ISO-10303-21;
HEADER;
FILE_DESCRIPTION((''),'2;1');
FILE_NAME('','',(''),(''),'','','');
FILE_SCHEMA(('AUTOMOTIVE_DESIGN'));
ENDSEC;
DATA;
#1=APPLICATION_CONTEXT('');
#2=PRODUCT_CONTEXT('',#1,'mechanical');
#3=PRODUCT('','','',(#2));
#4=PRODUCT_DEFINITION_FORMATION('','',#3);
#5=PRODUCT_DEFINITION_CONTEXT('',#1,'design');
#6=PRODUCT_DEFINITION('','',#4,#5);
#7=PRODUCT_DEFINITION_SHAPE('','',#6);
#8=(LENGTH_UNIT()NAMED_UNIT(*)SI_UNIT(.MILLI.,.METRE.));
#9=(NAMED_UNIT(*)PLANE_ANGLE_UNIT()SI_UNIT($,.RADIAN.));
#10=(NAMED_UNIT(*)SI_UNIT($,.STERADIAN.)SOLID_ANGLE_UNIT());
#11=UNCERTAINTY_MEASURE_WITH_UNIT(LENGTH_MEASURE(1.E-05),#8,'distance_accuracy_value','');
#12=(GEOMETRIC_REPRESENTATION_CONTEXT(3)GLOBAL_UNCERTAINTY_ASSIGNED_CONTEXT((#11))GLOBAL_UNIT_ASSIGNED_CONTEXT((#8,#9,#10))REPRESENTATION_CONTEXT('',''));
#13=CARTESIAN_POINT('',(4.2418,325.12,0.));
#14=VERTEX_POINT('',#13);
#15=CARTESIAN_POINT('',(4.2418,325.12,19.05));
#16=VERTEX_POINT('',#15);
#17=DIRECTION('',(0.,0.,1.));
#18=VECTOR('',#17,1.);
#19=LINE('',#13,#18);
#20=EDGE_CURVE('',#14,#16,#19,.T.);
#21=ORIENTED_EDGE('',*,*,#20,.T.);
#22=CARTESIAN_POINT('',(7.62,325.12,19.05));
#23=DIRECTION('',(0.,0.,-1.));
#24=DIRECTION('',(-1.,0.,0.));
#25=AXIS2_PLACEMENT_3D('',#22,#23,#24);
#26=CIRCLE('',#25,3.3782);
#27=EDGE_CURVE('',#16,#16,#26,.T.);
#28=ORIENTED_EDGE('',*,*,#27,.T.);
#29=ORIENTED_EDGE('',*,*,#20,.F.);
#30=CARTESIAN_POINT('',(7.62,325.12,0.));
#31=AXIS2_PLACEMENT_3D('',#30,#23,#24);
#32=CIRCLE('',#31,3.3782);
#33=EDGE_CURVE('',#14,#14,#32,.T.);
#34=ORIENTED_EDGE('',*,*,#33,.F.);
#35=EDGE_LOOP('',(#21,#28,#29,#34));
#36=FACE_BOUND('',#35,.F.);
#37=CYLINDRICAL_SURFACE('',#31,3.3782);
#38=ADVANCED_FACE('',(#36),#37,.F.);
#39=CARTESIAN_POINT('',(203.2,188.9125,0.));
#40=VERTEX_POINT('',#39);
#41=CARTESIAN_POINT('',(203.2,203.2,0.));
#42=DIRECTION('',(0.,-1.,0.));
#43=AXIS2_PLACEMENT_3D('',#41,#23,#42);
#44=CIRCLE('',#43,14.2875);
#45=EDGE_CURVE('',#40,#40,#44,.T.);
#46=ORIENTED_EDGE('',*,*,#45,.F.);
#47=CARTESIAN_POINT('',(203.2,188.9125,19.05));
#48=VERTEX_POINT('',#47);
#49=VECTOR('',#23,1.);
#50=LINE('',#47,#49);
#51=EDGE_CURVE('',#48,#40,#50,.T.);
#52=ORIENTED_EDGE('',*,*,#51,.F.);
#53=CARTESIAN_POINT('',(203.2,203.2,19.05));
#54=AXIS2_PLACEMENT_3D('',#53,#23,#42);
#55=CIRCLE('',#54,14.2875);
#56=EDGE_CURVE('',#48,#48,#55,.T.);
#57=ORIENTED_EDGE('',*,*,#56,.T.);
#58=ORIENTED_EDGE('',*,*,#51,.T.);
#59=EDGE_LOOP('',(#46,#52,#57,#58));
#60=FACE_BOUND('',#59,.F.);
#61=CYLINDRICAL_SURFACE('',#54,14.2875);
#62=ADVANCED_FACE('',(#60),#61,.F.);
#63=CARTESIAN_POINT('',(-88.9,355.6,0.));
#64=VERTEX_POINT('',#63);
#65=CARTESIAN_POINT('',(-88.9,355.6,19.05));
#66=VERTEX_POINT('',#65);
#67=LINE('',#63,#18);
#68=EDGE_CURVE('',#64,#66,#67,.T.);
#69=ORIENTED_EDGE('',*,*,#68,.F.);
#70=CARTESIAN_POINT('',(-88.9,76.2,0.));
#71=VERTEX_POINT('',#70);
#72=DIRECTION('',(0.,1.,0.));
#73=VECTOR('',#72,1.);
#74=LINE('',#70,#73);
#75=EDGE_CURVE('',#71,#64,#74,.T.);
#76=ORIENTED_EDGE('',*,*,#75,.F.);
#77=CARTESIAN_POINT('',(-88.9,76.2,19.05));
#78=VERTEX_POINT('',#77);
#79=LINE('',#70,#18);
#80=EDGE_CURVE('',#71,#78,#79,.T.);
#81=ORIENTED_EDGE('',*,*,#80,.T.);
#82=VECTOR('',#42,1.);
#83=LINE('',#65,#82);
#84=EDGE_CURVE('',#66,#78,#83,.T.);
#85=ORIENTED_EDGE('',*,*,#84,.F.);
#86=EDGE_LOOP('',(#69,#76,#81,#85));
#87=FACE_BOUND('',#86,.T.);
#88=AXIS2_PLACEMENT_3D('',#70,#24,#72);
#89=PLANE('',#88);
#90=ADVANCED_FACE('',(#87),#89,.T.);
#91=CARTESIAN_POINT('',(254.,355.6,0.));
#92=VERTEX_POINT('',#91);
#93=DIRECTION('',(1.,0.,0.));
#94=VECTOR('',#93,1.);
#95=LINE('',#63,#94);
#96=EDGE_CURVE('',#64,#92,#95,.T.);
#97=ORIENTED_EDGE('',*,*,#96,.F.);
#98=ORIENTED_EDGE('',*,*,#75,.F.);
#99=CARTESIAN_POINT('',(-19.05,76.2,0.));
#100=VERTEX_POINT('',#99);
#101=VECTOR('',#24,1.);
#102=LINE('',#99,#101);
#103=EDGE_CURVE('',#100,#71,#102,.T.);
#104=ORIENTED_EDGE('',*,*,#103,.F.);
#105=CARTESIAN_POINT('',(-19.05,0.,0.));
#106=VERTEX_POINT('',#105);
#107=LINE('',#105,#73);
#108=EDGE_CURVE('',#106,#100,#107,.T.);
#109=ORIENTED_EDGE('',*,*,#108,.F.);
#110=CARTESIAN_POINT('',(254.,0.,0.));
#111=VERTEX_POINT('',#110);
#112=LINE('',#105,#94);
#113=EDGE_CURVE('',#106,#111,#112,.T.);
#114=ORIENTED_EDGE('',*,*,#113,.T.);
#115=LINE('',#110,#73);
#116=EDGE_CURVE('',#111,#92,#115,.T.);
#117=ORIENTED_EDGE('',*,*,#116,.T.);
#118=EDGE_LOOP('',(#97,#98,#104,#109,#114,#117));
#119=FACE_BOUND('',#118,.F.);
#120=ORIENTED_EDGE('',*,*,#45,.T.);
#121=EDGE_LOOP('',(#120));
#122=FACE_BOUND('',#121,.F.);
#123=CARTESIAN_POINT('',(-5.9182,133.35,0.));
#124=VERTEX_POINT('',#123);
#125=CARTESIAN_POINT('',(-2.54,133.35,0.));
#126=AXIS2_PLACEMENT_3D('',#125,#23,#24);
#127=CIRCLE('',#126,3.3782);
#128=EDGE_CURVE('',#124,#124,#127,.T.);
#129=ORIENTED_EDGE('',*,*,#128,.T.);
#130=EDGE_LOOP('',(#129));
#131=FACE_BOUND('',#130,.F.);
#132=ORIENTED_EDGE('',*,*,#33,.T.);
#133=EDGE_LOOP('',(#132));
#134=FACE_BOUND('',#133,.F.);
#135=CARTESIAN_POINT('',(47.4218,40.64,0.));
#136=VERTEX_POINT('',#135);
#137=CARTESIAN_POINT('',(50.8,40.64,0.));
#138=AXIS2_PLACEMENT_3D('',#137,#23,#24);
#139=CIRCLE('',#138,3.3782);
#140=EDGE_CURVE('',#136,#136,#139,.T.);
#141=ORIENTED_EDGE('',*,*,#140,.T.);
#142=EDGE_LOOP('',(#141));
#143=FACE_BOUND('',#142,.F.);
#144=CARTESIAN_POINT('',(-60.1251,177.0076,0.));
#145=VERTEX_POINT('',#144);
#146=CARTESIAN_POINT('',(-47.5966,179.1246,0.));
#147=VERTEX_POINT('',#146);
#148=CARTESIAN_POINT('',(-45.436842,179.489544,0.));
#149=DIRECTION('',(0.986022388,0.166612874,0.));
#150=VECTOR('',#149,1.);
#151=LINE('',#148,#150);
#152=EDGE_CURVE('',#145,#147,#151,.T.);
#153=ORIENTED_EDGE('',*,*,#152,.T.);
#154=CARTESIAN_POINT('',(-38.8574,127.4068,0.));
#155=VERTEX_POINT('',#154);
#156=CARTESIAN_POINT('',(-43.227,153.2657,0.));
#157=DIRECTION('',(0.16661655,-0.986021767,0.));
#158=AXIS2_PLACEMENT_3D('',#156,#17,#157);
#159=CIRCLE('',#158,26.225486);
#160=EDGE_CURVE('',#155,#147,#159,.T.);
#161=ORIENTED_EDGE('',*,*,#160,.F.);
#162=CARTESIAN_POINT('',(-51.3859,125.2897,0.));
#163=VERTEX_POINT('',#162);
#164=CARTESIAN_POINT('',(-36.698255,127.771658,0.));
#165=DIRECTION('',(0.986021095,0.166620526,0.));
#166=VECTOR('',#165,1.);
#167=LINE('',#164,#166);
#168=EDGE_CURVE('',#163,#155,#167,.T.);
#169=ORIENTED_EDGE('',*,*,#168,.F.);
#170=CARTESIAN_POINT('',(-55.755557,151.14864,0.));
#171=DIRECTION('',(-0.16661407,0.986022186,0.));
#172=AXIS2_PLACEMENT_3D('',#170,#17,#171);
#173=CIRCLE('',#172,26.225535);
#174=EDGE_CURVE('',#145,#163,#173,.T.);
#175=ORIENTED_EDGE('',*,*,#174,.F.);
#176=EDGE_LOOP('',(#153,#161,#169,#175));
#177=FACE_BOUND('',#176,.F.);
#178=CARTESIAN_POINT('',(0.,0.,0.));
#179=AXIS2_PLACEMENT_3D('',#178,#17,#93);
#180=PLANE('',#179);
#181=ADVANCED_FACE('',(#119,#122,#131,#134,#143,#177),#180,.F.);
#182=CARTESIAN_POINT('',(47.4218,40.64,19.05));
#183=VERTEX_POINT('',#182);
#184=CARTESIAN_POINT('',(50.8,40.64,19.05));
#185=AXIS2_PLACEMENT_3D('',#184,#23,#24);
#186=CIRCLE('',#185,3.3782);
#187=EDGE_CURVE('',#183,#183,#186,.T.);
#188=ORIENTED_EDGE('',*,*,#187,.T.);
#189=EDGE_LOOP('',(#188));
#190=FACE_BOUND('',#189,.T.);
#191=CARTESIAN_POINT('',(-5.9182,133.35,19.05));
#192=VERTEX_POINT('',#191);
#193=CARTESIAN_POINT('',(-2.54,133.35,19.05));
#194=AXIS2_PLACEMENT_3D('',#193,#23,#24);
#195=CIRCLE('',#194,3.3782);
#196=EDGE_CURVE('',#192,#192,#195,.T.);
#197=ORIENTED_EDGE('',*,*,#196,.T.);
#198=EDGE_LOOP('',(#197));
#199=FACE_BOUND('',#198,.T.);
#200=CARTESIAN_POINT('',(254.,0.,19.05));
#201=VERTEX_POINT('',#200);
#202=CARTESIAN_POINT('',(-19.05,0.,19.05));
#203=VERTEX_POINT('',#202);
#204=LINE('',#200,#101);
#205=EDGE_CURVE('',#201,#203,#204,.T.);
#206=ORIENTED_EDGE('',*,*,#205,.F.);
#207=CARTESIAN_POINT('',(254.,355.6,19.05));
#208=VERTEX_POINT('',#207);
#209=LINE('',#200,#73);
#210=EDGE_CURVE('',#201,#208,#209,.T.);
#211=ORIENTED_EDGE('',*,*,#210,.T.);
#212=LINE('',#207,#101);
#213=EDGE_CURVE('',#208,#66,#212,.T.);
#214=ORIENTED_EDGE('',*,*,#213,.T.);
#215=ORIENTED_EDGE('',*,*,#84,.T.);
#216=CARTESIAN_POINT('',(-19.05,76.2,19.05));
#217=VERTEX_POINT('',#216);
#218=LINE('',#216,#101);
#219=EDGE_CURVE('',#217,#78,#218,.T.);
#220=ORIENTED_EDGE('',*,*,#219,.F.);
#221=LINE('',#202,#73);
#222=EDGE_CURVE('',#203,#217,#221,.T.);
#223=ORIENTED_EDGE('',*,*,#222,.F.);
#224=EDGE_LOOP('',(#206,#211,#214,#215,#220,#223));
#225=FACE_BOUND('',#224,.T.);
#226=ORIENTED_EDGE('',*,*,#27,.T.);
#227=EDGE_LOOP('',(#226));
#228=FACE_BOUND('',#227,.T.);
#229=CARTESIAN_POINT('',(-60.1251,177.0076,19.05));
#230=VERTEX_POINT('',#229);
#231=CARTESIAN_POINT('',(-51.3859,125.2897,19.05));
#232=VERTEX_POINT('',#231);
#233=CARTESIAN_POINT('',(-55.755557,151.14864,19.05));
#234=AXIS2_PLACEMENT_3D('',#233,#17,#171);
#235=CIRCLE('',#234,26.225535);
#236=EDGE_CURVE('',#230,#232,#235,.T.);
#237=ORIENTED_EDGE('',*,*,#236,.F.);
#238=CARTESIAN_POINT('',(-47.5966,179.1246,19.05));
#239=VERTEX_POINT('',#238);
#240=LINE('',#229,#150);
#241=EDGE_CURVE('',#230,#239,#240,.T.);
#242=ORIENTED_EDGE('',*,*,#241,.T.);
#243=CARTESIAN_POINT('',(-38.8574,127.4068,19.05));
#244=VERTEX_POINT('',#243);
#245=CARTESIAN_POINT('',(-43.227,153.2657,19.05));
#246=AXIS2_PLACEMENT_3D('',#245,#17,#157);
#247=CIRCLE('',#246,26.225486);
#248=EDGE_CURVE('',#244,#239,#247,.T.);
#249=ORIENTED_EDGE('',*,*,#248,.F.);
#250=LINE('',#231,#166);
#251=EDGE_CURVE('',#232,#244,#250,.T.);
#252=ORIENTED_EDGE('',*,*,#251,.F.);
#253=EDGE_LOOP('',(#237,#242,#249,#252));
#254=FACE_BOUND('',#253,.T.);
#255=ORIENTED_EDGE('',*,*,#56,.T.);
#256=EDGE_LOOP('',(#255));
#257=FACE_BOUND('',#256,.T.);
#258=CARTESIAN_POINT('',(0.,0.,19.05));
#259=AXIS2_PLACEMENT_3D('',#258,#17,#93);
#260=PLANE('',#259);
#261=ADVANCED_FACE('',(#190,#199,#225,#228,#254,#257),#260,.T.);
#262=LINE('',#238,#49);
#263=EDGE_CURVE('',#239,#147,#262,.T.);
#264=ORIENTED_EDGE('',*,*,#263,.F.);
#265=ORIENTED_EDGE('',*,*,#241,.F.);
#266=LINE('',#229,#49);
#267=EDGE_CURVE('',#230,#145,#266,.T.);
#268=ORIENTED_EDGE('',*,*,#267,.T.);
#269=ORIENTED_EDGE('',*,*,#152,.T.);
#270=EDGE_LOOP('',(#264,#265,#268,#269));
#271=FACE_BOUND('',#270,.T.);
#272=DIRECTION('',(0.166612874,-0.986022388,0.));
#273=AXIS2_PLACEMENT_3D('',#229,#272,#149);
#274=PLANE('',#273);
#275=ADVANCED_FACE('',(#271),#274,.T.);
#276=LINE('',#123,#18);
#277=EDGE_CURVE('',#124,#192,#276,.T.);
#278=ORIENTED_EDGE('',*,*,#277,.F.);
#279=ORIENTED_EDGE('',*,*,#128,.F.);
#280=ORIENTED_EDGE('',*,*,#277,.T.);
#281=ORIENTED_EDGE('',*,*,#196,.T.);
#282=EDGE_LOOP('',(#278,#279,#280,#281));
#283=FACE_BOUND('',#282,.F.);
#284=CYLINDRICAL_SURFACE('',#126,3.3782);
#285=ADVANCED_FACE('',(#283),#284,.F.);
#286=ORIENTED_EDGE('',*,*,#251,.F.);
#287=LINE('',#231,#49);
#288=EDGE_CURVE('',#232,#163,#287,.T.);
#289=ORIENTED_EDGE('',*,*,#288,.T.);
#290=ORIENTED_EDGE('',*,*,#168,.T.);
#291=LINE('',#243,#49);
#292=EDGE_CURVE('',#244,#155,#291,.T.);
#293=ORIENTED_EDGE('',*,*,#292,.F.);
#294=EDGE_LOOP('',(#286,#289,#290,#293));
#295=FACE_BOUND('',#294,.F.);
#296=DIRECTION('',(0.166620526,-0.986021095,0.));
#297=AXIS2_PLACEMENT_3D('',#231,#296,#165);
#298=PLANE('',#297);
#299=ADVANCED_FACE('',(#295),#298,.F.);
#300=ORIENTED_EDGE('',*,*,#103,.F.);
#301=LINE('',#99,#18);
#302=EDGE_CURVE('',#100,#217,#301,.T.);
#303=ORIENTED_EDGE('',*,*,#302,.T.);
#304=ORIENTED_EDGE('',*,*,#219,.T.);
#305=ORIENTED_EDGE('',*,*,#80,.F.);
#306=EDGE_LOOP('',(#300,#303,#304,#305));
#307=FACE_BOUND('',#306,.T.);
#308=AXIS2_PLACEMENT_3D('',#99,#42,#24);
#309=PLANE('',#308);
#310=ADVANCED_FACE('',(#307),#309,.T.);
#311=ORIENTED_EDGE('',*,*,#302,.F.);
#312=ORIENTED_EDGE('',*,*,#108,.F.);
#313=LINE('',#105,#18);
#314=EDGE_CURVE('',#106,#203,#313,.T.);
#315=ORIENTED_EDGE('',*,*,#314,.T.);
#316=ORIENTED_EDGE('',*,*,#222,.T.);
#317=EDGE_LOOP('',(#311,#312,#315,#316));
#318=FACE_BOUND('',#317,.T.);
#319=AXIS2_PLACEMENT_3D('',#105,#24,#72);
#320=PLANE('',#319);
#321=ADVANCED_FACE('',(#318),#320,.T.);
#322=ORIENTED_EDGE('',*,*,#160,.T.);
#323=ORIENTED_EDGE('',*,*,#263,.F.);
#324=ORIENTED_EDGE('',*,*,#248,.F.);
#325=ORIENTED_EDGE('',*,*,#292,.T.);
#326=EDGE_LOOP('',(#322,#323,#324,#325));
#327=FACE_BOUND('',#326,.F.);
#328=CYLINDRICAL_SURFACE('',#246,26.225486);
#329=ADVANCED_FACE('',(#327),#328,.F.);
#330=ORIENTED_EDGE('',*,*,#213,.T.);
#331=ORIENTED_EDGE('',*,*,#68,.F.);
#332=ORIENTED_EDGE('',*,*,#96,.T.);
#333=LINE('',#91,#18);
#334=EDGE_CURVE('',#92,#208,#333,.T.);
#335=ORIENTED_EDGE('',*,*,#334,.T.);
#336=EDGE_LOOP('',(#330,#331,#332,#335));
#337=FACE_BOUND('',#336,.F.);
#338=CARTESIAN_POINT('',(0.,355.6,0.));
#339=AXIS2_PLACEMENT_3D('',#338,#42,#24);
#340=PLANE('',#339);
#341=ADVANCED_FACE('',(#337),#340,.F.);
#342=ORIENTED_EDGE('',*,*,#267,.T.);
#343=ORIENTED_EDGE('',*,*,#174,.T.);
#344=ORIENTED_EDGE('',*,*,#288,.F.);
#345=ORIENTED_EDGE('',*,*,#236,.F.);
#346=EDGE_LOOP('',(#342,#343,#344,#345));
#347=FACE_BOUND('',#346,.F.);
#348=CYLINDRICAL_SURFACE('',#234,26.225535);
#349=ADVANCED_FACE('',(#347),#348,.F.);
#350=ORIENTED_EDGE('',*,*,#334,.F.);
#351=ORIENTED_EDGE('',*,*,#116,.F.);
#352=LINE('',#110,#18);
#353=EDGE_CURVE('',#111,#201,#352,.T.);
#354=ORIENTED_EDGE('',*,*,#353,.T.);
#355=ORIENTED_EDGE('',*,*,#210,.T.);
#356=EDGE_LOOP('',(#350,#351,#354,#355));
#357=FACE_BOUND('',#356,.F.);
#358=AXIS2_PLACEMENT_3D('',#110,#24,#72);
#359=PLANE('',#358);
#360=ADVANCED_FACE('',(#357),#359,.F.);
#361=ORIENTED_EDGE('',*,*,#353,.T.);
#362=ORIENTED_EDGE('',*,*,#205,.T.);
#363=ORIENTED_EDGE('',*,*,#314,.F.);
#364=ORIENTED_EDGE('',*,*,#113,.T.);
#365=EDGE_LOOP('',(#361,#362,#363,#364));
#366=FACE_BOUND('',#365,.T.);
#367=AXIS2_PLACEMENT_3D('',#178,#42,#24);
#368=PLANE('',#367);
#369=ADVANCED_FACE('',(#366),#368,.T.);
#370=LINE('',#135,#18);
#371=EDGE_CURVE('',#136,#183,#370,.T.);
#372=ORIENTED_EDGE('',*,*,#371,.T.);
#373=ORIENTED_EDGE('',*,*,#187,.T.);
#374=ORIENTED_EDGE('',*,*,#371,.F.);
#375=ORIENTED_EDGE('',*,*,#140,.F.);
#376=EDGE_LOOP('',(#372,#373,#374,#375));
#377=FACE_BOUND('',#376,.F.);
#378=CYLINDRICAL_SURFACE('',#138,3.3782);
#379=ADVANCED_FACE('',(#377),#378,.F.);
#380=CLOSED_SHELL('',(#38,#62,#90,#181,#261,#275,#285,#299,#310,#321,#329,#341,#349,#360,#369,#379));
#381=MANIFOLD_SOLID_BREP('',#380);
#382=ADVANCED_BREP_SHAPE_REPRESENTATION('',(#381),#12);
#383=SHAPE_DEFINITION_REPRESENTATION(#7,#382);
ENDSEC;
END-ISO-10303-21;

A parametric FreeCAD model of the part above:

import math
import FreeCAD as App
import Part
import Sketcher
Q = App.Units.Quantity

doc = App.newDocument("Part")
params = doc.addObject("Spreadsheet::Sheet", "Params")
for row, (alias, value) in enumerate([
    ("sketch1_height", "14 in"),
    ("sketch1_height2", "3 in"),
    ("sketch1_width", "2.75 in"),
    ("pad1_length", "0.75 in"),
    ("sketch2_diameter", "1.125 in"),
    ("hole_diameter", "1.125 in"),
    ("sketch3_diameter", "0.266 in"),
], start=1):
    params.set(f"A{row}", alias)
    params.set(f"B{row}", "=" + value)
    params.setAlias(f"B{row}", alias)

body = doc.addObject("PartDesign::Body", "Body")

sketch1 = body.newObject("Sketcher::SketchObject", "Sketch")
sketch1.AttachmentSupport = (doc.getObject("XY_Plane"), [""])
sketch1.MapMode = "FlatFace"
sketch1.addGeometry(Part.LineSegment(App.Vector(-19, 0, 0), App.Vector(254, 0, 0)), False)
sketch1.addGeometry(Part.LineSegment(App.Vector(254, 0, 0), App.Vector(254, 356, 0)), False)
sketch1.addGeometry(Part.LineSegment(App.Vector(254, 356, 0), App.Vector(-89, 356, 0)), False)
sketch1.addGeometry(Part.LineSegment(App.Vector(-89, 356, 0), App.Vector(-89, 76, 0)), False)
sketch1.addGeometry(Part.LineSegment(App.Vector(-89, 76, 0), App.Vector(-19, 76, 0)), False)
sketch1.addGeometry(Part.LineSegment(App.Vector(-19, 76, 0), App.Vector(-19, 0, 0)), False)
sketch1.addConstraint(Sketcher.Constraint("Coincident", 0, 2, 1, 1))
sketch1.addConstraint(Sketcher.Constraint("Coincident", 1, 2, 2, 1))
sketch1.addConstraint(Sketcher.Constraint("Coincident", 2, 2, 3, 1))
sketch1.addConstraint(Sketcher.Constraint("Coincident", 3, 2, 4, 1))
sketch1.addConstraint(Sketcher.Constraint("Coincident", 4, 2, 5, 1))
sketch1.addConstraint(Sketcher.Constraint("Coincident", 5, 2, 0, 1))
sketch1.addConstraint(Sketcher.Constraint("Horizontal", 0))
sketch1.addConstraint(Sketcher.Constraint("Vertical", 1))
sketch1.addConstraint(Sketcher.Constraint("Horizontal", 2))
sketch1.addConstraint(Sketcher.Constraint("Vertical", 3))
sketch1.addConstraint(Sketcher.Constraint("Horizontal", 4))
sketch1.addConstraint(Sketcher.Constraint("Vertical", 5))
sketch1.addConstraint(Sketcher.Constraint("PointOnObject", 0, 2, -1))
sketch1.addConstraint(Sketcher.Constraint("DistanceY", 1, 1, 1, 2, Q("14 in")))
sketch1.addConstraint(Sketcher.Constraint("DistanceY", 5, 2, 5, 1, Q("3 in")))
sketch1.addConstraint(Sketcher.Constraint("DistanceX", -1, 1, 0, 2, Q("10 in")))
sketch1.addConstraint(Sketcher.Constraint("DistanceX", 4, 1, 4, 2, Q("2.75 in")))
sketch1.addConstraint(Sketcher.Constraint("DistanceX", 2, 2, -1, 1, Q("3.5 in")))
sketch1.setExpression("Constraints[13]", "Params.sketch1_height")
sketch1.setExpression("Constraints[14]", "Params.sketch1_height2")
sketch1.setExpression("Constraints[16]", "Params.sketch1_width")
pad1 = body.newObject("PartDesign::Pad", "Pad")
pad1.Profile = sketch1
pad1.setExpression("Length", "Params.pad1_length")

sketch2 = body.newObject("Sketcher::SketchObject", "Sketch001")
sketch2.AttachmentSupport = (doc.getObject("XY_Plane"), [""])
sketch2.MapMode = "FlatFace"
sketch2.AttachmentOffset = App.Placement(App.Vector(0, 0, 0.75 * 25.4), App.Rotation())
sketch2.addGeometry(Part.Circle(App.Vector(203, 203, 0), App.Vector(0, 0, 1), 14), False)
sketch2.addConstraint(Sketcher.Constraint("Diameter", 0, Q("1.125 in")))
sketch2.addConstraint(Sketcher.Constraint("DistanceX", -1, 1, 0, 3, Q("8 in")))
sketch2.addConstraint(Sketcher.Constraint("DistanceY", -1, 1, 0, 3, Q("8 in")))
sketch2.setExpression("Constraints[0]", "Params.sketch2_diameter")
doc.recompute()
hole = body.newObject("PartDesign::Hole", "Hole")
hole.Profile = sketch2
hole.ThreadType = "None"
hole.setExpression("Diameter", "Params.hole_diameter")
hole.DepthType = "ThroughAll"

sketch3 = body.newObject("Sketcher::SketchObject", "Sketch002")
sketch3.AttachmentSupport = (doc.getObject("XY_Plane"), [""])
sketch3.MapMode = "FlatFace"
sketch3.addGeometry(Part.Circle(App.Vector(7.6, 325.1, 0), App.Vector(0, 0, 1), 3.4), False)
sketch3.addGeometry(Part.Circle(App.Vector(-2.5, 133.3, 0), App.Vector(0, 0, 1), 3.4), False)
sketch3.addGeometry(Part.Circle(App.Vector(50.8, 40.6, 0), App.Vector(0, 0, 1), 3.4), False)
sketch3.addConstraint(Sketcher.Constraint("Equal", 0, 1))
sketch3.addConstraint(Sketcher.Constraint("Equal", 1, 2))
sketch3.addConstraint(Sketcher.Constraint("Diameter", 0, Q("0.266 in")))
sketch3.addConstraint(Sketcher.Constraint("DistanceY", -1, 1, 0, 3, Q("12.8 in")))
sketch3.addConstraint(Sketcher.Constraint("DistanceY", -1, 1, 2, 3, Q("1.6 in")))
sketch3.addConstraint(Sketcher.Constraint("DistanceY", -1, 1, 1, 3, Q("5.25 in")))
sketch3.addConstraint(Sketcher.Constraint("DistanceX", -1, 1, 2, 3, Q("2 in")))
sketch3.addConstraint(Sketcher.Constraint("DistanceX", -1, 1, 0, 3, Q("0.3 in")))
sketch3.addConstraint(Sketcher.Constraint("DistanceX", 1, 3, -1, 1, Q("0.1 in")))
sketch3.setExpression("Constraints[2]", "Params.sketch3_diameter")
pocket1 = body.newObject("PartDesign::Pocket", "Pocket")
pocket1.Profile = sketch3
pocket1.Type = "ThroughAll"
pocket1.Reversed = True

sketch4 = body.newObject("Sketcher::SketchObject", "Sketch003")
sketch4.AttachmentSupport = (doc.getObject("XY_Plane"), [""])
sketch4.MapMode = "FlatFace"
sketch4.AttachmentOffset = App.Placement(App.Vector(0, 0, 0.75 * 25.4), App.Rotation())
sketch4.addGeometry(Part.LineSegment(App.Vector(-51, 125, 0), App.Vector(-39, 127, 0)), False)
sketch4.addGeometry(Part.ArcOfCircle(Part.Circle(App.Vector(-43, 153, 0), App.Vector(0, 0, 1), 26), math.radians(-80), math.radians(100)), False)
sketch4.addGeometry(Part.LineSegment(App.Vector(-48, 179, 0), App.Vector(-60, 177, 0)), False)
sketch4.addGeometry(Part.ArcOfCircle(Part.Circle(App.Vector(-56, 151, 0), App.Vector(0, 0, 1), 26), math.radians(100), math.radians(280)), False)
sketch4.addConstraint(Sketcher.Constraint("Tangent", 0, 2, 1, 1))
sketch4.addConstraint(Sketcher.Constraint("Tangent", 1, 2, 2, 1))
sketch4.addConstraint(Sketcher.Constraint("Tangent", 2, 2, 3, 1))
sketch4.addConstraint(Sketcher.Constraint("Tangent", 3, 2, 0, 1))
sketch4.addConstraint(Sketcher.Constraint("Equal", 1, 3))
sketch4.addConstraint(Sketcher.Constraint("Radius", 1, Q("1.0325 in")))
sketch4.addConstraint(Sketcher.Constraint("Angle", 2, Q("-170.409 deg")))
sketch4.addConstraint(Sketcher.Constraint("DistanceX", 3, 3, -1, 1, Q("2.1951 in")))
sketch4.addConstraint(Sketcher.Constraint("DistanceY", -1, 1, 2, 2, Q("6.9688 in")))
sketch4.addConstraint(Sketcher.Constraint("DistanceX", 2, 2, 0, 2, Q("0.8373 in")))
pocket2 = body.newObject("PartDesign::Pocket", "Pocket001")
pocket2.Profile = sketch4
pocket2.Type = "ThroughAll"

doc.recompute()
